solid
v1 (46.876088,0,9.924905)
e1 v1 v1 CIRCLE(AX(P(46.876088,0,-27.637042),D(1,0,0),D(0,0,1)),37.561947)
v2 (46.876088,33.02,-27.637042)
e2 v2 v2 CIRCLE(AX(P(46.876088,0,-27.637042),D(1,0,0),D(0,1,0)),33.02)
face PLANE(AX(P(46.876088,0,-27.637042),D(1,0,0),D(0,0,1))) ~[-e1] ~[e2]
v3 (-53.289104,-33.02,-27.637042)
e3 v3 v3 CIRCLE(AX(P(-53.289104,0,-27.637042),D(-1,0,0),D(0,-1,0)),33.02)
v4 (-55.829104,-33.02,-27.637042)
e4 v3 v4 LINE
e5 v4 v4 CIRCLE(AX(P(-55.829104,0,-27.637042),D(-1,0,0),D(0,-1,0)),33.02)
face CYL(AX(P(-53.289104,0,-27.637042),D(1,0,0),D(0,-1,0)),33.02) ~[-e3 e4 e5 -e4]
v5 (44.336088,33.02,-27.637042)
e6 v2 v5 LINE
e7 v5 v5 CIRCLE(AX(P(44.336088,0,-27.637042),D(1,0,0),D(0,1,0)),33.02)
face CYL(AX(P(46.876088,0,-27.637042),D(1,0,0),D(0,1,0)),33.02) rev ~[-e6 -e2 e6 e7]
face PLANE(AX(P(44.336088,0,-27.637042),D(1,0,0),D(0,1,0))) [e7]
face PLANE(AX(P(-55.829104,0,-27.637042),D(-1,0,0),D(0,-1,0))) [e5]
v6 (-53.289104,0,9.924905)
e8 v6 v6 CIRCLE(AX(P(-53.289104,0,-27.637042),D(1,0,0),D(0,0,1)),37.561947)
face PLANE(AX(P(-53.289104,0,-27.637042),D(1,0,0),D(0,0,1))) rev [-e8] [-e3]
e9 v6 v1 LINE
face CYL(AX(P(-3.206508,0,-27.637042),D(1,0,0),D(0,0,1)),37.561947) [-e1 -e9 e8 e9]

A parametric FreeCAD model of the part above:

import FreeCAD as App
import Part
import Sketcher
Q = App.Units.Quantity


def add_polygon(sketch, points):
    """Adds a closed chain of lines whose ends are joined by coincident constraints."""
    first, n = sketch.GeometryCount, len(points)
    for a, b in zip(points, points[1:] + points[:1]):
        sketch.addGeometry(Part.LineSegment(App.Vector(*a, 0), App.Vector(*b, 0)), False)
    for i in range(n):
        sketch.addConstraint(Sketcher.Constraint("Coincident", first + i, 2, first + (i + 1) % n, 1))

doc = App.newDocument("Part")
params = doc.addObject("Spreadsheet::Sheet", "Params")
for row, (alias, value) in enumerate([
    ("revolution_angle", "360 deg"),
    ("sketch2_diameter", "2.6 in"),
    ("pocket1_length", "0.1 in"),
    ("sketch3_diameter", "2.6 in"),
    ("pad1_length", "0.1 in"),
], start=1):
    params.set(f"A{row}", alias)
    params.set(f"B{row}", "=" + value)
    params.setAlias(f"B{row}", alias)

body = doc.addObject("PartDesign::Body", "Body")

# Sketch on XZ plane
sketch1 = doc.addObject("Sketcher::SketchObject", "Sketch")
body.addObject(sketch1)
sketch1.AttachmentSupport = (doc.XZ_Plane, [""])
sketch1.MapMode = "FlatFace"
add_polygon(sketch1, [(-53, 10), (-53, -28), (47, -28), (47, 10)])  # lines 0-3
sketch1.addGeometry(Part.LineSegment(App.Vector(-53, -28, 0), App.Vector(47, -28, 0)), True)  # axis
sketch1.addConstraint([
    Sketcher.Constraint("Vertical", 0),
    Sketcher.Constraint("Horizontal", 1),
    Sketcher.Constraint("Vertical", 2),
    Sketcher.Constraint("Horizontal", 3),
    Sketcher.Constraint("Horizontal", 4),
    Sketcher.Constraint("Coincident", 4, 1, 0, 2),
    Sketcher.Constraint("Vertical", 2, 2, 4, 2),
    Sketcher.Constraint("DistanceX", 1, 1, 1, 2, 100.165192),
    Sketcher.Constraint("DistanceY", 0, 2, 0, 1, 37.561947),
    Sketcher.Constraint("DistanceX", 0, 2, -1, 1, 53.289104),
    Sketcher.Constraint("DistanceY", 0, 2, -1, 1, 27.637042),
])
revolution = doc.addObject("PartDesign::Revolution", "Revolution")
body.addObject(revolution)
revolution.Profile = sketch1
revolution.ReferenceAxis = (sketch1, ["Axis0"])
revolution.setExpression("Angle", "Params.revolution_angle")

# Sketch on YZ plane
sketch2 = doc.addObject("Sketcher::SketchObject", "Sketch001")
body.addObject(sketch2)
sketch2.AttachmentSupport = (doc.YZ_Plane, [""])
sketch2.MapMode = "FlatFace"
sketch2.AttachmentOffset = App.Placement(App.Vector(0, 0, 46.876088), App.Rotation())
sketch2.addGeometry(Part.Circle(App.Vector(0, -28, 0), App.Vector(0, 0, 1), 33), False)
sketch2.addConstraint([
    Sketcher.Constraint("PointOnObject", 0, 3, -2),
    Sketcher.Constraint("Diameter", 0, Q("2.6 in")),
    Sketcher.Constraint("DistanceY", 0, 3, -1, 1, 27.637042),
])
sketch2.setExpression("Constraints[1]", "Params.sketch2_diameter")
pocket1 = doc.addObject("PartDesign::Pocket", "Pocket")
body.addObject(pocket1)
pocket1.Profile = sketch2
pocket1.setExpression("Length", "Params.pocket1_length")

# Sketch on YZ plane
sketch3 = doc.addObject("Sketcher::SketchObject", "Sketch002")
body.addObject(sketch3)
sketch3.AttachmentSupport = (doc.YZ_Plane, [""])
sketch3.MapMode = "FlatFace"
sketch3.AttachmentOffset = App.Placement(App.Vector(0, 0, -53.289104), App.Rotation())
sketch3.addGeometry(Part.Circle(App.Vector(0, -28, 0), App.Vector(0, 0, 1), 33), False)
sketch3.addConstraint([
    Sketcher.Constraint("PointOnObject", 0, 3, -2),
    Sketcher.Constraint("Diameter", 0, Q("2.6 in")),
    Sketcher.Constraint("DistanceY", 0, 3, -1, 1, 27.637042),
])
sketch3.setExpression("Constraints[1]", "Params.sketch3_diameter")
pad1 = doc.addObject("PartDesign::Pad", "Pad")
body.addObject(pad1)
pad1.Profile = sketch3
pad1.setExpression("Length", "Params.pad1_length")
pad1.Reversed = True

doc.recompute()
